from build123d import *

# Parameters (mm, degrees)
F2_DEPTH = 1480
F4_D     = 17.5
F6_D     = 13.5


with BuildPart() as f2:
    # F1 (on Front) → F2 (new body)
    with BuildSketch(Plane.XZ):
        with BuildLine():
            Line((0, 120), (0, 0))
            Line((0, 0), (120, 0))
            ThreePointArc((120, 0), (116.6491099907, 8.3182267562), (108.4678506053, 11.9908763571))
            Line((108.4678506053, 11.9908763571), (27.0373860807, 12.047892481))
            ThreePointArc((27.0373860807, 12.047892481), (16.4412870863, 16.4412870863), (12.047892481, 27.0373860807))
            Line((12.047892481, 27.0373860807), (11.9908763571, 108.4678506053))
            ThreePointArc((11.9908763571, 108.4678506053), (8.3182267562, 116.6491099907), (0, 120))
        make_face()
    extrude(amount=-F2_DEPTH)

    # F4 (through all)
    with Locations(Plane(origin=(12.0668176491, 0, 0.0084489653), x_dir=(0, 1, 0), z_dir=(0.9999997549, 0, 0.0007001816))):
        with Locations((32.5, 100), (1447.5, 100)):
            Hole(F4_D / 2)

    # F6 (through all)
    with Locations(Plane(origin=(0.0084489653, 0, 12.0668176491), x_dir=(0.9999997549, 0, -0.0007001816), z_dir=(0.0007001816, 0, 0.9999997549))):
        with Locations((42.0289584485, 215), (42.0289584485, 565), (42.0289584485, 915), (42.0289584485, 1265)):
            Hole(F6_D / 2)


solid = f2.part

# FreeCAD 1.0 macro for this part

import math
import FreeCAD as App
import Part
import Sketcher
from FreeCAD import Vector

doc = App.newDocument("Part")
body = doc.addObject("PartDesign::Body", "Body")

# Sketch on XZ plane
sketch1 = body.newObject("Sketcher::SketchObject", "Sketch")
sketch1.AttachmentSupport = (doc.getObject("XZ_Plane"), [""])
sketch1.MapMode = "FlatFace"
sketch1.addGeometry([
    Part.LineSegment(Vector(0, 120, 0), Vector(0, 0, 0)),  # 0
    Part.LineSegment(Vector(0, 0, 0), Vector(120, 0, 0)),  # 1
    Part.ArcOfCircle(Part.Circle(Vector(108, 0, 0), Vector(0, 0, 1), 12), math.radians(0), math.radians(88)),  # 2
    Part.LineSegment(Vector(108, 12, 0), Vector(27, 12, 0)),  # 3
    Part.ArcOfCircle(Part.Circle(Vector(27, 27, 0), Vector(0, 0, 1), 15), math.radians(-180), math.radians(-90)),  # 4
    Part.LineSegment(Vector(12, 27, 0), Vector(12, 108, 0)),  # 5
    Part.ArcOfCircle(Part.Circle(Vector(0, 108, 0), Vector(0, 0, 1), 12), math.radians(2), math.radians(90)),  # 6
], False)
sketch1.addConstraint([
    Sketcher.Constraint("Coincident", 0, 2, 1, 1),
    Sketcher.Constraint("Coincident", 1, 2, 2, 1),
    Sketcher.Constraint("Coincident", 2, 2, 3, 1),
    Sketcher.Constraint("Tangent", 3, 2, 4, 2),
    Sketcher.Constraint("Tangent", 4, 1, 5, 1),
    Sketcher.Constraint("Coincident", 5, 2, 6, 1),
    Sketcher.Constraint("Coincident", 6, 2, 0, 1),
    Sketcher.Constraint("Vertical", 0),
    Sketcher.Constraint("Horizontal", 1),
    Sketcher.Constraint("Coincident", 0, 2, -1, 1),
    Sketcher.Constraint("Equal", 2, 6),
    Sketcher.Constraint("PointOnObject", 2, 3, -1),
    Sketcher.Constraint("PointOnObject", 6, 3, -2),
    Sketcher.Constraint("Equal", 1, 0),
    Sketcher.Constraint("Equal", 3, 5),
    Sketcher.Constraint("Radius", 2, 12.0),
    Sketcher.Constraint("Radius", 4, 15.0),
    Sketcher.Constraint("DistanceX", 1, 1, 1, 2, 120.0),
    Sketcher.Constraint("DistanceX", -1, 1, 4, 3, 27.047889),
    Sketcher.Constraint("DistanceY", -1, 1, 4, 3, 27.047889),
    Sketcher.Constraint("DistanceX", -1, 1, 2, 2, 108.467851),
])
pad1 = body.newObject("PartDesign::Pad", "Pad")
pad1.Profile = sketch1
pad1.Length = 1480
pad1.Reversed = True

# Sketch on an angled plane
sketch2 = body.newObject("Sketcher::SketchObject", "Sketch001")
sketch2.Placement = App.Placement(Vector(12.066818, 0, 0.008449), App.Rotation(Vector(0, 1, 0), Vector(-0.000700182, 0, 0.999999755), Vector(0.999999755, 0, 0.000700182), "ZXY"))
sketch2.addGeometry([
    Part.Circle(Vector(32, 100, 0), Vector(0, 0, 1), 9),
    Part.Circle(Vector(1448, 100, 0), Vector(0, 0, 1), 9),
], False)
sketch2.addConstraint([
    Sketcher.Constraint("Equal", 0, 1),
    Sketcher.Constraint("Horizontal", 0, 3, 1, 3),
    Sketcher.Constraint("Diameter", 0, 17.5),
    Sketcher.Constraint("DistanceY", -1, 1, 0, 3, 100.0),
    Sketcher.Constraint("DistanceX", 0, 3, 1, 3, 1415.0),
    Sketcher.Constraint("DistanceX", -1, 1, 0, 3, 32.5),
])
doc.recompute()
hole = body.newObject("PartDesign::Hole", "Hole")
hole.Profile = sketch2
hole.ThreadType = "None"
hole.Diameter = 17.5
hole.DepthType = "ThroughAll"

# Sketch on an angled plane
sketch3 = body.newObject("Sketcher::SketchObject", "Sketch002")
sketch3.Placement = App.Placement(Vector(0.008449, 0, 12.066818), App.Rotation(Vector(0.999999755, 0, -0.000700182), Vector(0, 1, 0), Vector(0.000700182, 0, 0.999999755), "ZXY"))
sketch3.addGeometry([
    Part.Circle(Vector(42, 215, 0), Vector(0, 0, 1), 7),
    Part.Circle(Vector(42, 565, 0), Vector(0, 0, 1), 7),
    Part.Circle(Vector(42, 915, 0), Vector(0, 0, 1), 7),
    Part.Circle(Vector(42, 1265, 0), Vector(0, 0, 1), 7),
], False)
sketch3.addConstraint([
    Sketcher.Constraint("Equal", 0, 1),
    Sketcher.Constraint("Equal", 1, 2),
    Sketcher.Constraint("Equal", 2, 3),
    Sketcher.Constraint("Vertical", 0, 3, 1, 3),
    Sketcher.Constraint("Vertical", 1, 3, 2, 3),
    Sketcher.Constraint("Vertical", 2, 3, 3, 3),
    Sketcher.Constraint("Diameter", 0, 13.5),
    Sketcher.Constraint("DistanceY", -1, 1, 0, 3, 215.0),
    Sketcher.Constraint("DistanceY", -1, 1, 1, 3, 565.0),
    Sketcher.Constraint("DistanceY", -1, 1, 2, 3, 915.0),
    Sketcher.Constraint("DistanceY", -1, 1, 3, 3, 1265.000001),
    Sketcher.Constraint("DistanceX", -1, 1, 0, 3, 42.028958),
])
doc.recompute()
hole2 = body.newObject("PartDesign::Hole", "Hole001")
hole2.Profile = sketch3
hole2.ThreadType = "None"
hole2.Diameter = 13.5
hole2.DepthType = "ThroughAll"

doc.recompute()
